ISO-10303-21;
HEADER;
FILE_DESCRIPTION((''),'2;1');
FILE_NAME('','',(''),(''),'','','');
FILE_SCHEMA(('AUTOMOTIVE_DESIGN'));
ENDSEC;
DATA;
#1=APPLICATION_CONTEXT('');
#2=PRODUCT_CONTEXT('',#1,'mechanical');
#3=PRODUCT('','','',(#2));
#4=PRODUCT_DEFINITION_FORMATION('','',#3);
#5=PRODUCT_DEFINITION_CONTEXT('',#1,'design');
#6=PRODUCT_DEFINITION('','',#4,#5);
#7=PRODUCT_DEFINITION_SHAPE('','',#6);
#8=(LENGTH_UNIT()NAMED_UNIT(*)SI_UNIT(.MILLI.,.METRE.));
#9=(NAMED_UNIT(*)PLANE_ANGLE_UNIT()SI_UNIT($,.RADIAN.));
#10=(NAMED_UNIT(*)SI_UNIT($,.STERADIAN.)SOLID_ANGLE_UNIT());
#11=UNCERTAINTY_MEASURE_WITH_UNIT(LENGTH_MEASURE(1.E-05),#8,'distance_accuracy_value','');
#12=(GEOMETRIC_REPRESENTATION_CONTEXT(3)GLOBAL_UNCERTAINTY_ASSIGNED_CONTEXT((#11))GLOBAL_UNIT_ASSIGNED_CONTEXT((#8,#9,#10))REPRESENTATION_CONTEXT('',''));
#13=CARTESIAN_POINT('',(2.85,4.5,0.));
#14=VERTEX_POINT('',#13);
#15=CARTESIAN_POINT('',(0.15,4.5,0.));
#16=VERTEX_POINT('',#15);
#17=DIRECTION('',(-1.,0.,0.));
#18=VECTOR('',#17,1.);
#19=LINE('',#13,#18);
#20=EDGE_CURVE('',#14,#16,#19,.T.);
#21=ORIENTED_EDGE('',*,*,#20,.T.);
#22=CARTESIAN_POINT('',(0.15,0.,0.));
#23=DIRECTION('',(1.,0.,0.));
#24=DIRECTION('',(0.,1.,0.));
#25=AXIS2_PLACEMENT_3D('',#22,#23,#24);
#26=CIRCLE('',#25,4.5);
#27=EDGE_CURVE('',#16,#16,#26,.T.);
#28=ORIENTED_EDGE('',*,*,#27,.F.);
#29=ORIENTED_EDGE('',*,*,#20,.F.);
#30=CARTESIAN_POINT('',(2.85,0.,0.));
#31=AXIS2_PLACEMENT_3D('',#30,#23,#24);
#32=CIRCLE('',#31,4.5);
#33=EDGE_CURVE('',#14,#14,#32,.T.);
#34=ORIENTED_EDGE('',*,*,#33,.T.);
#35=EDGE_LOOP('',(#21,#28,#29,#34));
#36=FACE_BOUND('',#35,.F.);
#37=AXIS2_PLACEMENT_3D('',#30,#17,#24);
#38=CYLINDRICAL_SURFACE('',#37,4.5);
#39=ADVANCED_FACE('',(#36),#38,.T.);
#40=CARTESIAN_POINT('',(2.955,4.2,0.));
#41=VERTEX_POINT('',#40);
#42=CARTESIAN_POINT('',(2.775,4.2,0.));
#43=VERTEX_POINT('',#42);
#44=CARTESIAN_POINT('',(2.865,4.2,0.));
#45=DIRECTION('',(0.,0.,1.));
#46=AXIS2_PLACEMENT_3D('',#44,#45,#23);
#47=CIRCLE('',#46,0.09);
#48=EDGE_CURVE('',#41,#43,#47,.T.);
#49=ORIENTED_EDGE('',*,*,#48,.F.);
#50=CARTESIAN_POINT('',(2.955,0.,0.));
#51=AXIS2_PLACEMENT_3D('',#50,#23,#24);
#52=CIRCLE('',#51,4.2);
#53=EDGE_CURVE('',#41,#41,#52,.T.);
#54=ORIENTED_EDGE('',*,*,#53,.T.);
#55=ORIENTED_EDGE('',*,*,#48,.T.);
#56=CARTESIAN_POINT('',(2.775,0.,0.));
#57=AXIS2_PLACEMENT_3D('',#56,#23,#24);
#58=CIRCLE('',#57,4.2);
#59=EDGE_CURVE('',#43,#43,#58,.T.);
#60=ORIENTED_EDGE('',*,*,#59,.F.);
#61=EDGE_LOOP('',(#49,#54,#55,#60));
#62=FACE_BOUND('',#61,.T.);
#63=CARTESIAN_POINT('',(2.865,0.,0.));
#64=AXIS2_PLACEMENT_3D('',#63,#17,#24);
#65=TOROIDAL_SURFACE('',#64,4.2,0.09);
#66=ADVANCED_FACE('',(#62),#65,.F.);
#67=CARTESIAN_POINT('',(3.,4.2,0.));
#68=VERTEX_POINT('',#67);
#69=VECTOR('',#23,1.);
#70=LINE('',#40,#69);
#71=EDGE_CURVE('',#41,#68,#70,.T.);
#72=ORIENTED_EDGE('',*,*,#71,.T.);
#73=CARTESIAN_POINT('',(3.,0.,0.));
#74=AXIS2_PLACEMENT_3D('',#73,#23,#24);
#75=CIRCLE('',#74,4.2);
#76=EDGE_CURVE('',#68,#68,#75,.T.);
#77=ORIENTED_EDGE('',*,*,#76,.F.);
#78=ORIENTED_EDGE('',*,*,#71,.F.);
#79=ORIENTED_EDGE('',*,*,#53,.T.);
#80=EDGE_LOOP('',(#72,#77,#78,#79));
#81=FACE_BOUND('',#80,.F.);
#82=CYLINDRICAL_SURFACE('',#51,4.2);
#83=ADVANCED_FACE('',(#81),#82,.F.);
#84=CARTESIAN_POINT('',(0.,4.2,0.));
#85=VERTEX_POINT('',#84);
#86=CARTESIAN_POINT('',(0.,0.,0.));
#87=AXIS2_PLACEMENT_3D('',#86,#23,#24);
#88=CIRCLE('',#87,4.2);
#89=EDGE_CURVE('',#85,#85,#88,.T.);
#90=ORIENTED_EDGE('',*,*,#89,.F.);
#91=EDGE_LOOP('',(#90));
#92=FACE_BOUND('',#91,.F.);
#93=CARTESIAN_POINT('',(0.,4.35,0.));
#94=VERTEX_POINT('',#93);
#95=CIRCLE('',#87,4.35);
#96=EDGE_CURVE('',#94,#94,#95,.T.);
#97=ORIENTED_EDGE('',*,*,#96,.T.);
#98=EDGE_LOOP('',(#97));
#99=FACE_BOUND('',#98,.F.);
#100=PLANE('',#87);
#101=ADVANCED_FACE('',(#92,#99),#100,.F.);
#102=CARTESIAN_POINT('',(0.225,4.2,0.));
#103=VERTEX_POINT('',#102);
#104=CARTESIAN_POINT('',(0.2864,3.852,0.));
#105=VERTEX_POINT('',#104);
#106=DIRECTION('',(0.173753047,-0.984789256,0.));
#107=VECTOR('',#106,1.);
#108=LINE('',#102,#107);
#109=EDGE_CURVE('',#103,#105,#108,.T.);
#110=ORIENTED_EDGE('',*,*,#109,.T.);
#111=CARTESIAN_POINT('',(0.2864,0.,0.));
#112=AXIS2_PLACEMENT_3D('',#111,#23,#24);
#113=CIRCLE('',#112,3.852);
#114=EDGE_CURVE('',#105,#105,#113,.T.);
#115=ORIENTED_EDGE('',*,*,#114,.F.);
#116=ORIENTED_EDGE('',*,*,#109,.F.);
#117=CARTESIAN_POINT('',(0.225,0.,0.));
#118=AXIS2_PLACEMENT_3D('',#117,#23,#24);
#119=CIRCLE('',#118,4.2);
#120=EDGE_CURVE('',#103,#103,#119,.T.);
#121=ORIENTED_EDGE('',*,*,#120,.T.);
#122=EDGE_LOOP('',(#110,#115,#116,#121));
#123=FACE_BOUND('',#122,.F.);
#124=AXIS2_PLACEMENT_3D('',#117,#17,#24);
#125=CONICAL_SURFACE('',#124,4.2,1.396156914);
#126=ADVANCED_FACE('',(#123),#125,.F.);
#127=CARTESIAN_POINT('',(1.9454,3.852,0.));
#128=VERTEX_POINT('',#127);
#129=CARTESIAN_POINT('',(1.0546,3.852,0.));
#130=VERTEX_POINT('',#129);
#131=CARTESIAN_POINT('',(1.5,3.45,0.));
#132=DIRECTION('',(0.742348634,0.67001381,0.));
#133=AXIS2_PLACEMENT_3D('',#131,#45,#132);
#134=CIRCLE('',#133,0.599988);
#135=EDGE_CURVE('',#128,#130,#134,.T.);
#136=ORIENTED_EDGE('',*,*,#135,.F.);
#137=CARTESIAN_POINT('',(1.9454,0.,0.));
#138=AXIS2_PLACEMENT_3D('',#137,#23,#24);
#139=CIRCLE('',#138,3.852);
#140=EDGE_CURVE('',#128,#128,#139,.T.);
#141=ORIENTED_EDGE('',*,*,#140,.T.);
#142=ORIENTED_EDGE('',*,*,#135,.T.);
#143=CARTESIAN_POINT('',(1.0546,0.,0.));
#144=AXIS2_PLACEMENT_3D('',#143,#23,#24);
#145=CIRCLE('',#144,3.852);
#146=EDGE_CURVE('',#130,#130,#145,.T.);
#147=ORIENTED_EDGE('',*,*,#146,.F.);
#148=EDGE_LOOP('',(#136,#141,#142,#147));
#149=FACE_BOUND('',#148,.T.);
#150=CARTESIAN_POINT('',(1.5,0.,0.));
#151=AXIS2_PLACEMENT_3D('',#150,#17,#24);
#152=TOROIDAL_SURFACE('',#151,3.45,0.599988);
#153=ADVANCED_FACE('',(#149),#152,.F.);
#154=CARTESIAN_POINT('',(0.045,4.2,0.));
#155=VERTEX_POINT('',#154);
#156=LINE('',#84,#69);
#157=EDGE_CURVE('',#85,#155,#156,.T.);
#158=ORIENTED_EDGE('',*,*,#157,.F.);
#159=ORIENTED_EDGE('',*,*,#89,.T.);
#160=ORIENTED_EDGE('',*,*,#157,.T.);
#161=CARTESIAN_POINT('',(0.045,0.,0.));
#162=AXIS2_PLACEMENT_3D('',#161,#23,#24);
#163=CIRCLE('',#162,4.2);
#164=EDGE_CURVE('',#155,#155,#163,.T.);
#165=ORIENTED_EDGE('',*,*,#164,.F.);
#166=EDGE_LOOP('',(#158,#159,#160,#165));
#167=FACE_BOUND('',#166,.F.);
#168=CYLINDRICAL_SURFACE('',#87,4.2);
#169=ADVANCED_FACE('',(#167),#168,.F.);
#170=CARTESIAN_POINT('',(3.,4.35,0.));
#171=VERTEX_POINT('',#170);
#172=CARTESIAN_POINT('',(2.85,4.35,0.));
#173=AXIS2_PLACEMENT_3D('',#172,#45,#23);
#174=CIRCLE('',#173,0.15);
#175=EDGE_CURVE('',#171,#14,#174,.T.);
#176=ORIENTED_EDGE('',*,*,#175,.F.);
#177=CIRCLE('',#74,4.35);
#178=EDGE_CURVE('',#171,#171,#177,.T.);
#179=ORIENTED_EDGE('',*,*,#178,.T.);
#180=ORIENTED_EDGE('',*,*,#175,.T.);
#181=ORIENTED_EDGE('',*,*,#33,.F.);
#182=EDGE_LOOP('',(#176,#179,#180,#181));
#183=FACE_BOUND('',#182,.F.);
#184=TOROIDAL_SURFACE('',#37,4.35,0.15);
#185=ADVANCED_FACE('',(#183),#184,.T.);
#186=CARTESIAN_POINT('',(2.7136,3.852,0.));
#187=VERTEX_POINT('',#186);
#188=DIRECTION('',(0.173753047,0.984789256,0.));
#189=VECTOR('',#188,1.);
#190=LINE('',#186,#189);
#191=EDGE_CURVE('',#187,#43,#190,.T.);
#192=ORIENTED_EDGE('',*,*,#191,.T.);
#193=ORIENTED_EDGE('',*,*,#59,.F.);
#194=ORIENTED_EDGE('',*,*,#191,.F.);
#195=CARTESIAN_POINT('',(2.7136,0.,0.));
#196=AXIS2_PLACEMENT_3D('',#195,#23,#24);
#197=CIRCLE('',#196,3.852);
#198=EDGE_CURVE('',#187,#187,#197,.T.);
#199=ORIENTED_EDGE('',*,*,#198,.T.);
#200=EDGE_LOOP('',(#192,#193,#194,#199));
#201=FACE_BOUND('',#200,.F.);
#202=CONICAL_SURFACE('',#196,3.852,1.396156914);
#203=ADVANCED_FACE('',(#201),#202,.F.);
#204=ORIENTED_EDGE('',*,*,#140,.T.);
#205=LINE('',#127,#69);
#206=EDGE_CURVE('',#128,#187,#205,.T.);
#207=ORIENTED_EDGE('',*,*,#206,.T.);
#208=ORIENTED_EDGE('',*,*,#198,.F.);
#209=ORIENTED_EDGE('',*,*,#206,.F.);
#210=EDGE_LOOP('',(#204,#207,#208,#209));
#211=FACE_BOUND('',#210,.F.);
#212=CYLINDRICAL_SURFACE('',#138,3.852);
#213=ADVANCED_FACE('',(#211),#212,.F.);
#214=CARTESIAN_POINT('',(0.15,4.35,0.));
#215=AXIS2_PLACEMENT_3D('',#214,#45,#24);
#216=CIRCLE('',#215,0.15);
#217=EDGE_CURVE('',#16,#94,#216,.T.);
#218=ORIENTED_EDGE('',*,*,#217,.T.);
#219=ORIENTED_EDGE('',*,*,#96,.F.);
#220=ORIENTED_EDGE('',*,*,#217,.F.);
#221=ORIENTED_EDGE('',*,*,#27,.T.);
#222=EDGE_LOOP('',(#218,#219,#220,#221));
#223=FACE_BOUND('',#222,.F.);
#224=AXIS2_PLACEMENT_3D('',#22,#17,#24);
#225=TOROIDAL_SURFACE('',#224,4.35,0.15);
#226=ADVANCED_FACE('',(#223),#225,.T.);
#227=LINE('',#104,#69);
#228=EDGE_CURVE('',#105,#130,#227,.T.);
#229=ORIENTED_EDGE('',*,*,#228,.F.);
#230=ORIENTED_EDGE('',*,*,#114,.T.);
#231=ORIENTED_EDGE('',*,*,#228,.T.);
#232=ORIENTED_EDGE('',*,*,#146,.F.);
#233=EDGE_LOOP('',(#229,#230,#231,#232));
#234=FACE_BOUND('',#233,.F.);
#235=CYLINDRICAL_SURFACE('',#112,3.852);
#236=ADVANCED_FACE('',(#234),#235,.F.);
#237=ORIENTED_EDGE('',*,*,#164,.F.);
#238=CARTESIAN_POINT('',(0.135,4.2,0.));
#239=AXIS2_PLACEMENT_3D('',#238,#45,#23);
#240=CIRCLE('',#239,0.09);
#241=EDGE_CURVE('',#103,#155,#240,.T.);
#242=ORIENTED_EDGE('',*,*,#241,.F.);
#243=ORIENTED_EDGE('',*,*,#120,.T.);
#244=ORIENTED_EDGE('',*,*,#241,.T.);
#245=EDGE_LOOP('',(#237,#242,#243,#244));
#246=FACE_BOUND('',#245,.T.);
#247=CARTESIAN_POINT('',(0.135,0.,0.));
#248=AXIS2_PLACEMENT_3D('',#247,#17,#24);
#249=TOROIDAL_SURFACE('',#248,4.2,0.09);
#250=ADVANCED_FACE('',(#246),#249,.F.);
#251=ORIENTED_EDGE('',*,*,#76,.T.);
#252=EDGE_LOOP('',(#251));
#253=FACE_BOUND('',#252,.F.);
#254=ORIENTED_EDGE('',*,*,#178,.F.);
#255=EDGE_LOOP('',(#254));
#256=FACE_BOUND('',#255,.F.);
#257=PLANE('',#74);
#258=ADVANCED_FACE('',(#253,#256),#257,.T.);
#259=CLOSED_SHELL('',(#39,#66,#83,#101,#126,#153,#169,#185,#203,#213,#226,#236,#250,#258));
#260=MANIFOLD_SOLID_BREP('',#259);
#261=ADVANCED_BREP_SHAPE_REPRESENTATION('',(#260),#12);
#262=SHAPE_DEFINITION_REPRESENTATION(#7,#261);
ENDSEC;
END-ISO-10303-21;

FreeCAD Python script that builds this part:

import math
import FreeCAD as App
import Part
import Sketcher

doc = App.newDocument("Part")
params = doc.addObject("Spreadsheet::Sheet", "Params")
for row, (alias, value) in enumerate([
    ("sketch1_radius", "0.6 mm"),
    ("sketch1_radius2", "0.15 mm"),
    ("sketch1_radius3", "0.09 mm"),
    ("sketch1_width", "2.7 mm"),
    ("sketch1_height", "0.15 mm"),
    ("revolution_angle", "360 deg"),
], start=1):
    params.set(f"A{row}", alias)
    params.set(f"B{row}", "=" + value)
    params.setAlias(f"B{row}", alias)

body = doc.addObject("PartDesign::Body", "Body")

# Sketch on XY plane
sketch1 = doc.addObject("Sketcher::SketchObject", "Sketch")
body.addObject(sketch1)
sketch1.AttachmentSupport = (doc.XY_Plane, [""])
sketch1.MapMode = "FlatFace"
sketch1.addGeometry([
    Part.ArcOfCircle(Part.Circle(App.Vector(0.15, 4.35, 0), App.Vector(0, 0, 1), 0.15), math.radians(90), math.radians(180)),  # 0
    Part.LineSegment(App.Vector(0, 4.35, 0), App.Vector(0, 4.2, 0)),  # 1
    Part.LineSegment(App.Vector(0, 4.2, 0), App.Vector(0.045, 4.2, 0)),  # 2
    Part.ArcOfCircle(Part.Circle(App.Vector(0.135, 4.2, 0), App.Vector(0, 0, 1), 0.09), math.radians(0), math.radians(180)),  # 3
    Part.LineSegment(App.Vector(0.225, 4.2, 0), App.Vector(0.286, 3.852, 0)),  # 4
    Part.LineSegment(App.Vector(0.286, 3.852, 0), App.Vector(1.055, 3.852, 0)),  # 5
    Part.ArcOfCircle(Part.Circle(App.Vector(1.5, 3.45, 0), App.Vector(0, 0, 1), 0.6), math.radians(42), math.radians(138)),  # 6
    Part.LineSegment(App.Vector(1.945, 3.852, 0), App.Vector(2.714, 3.852, 0)),  # 7
    Part.LineSegment(App.Vector(2.714, 3.852, 0), App.Vector(2.775, 4.2, 0)),  # 8
    Part.ArcOfCircle(Part.Circle(App.Vector(2.865, 4.2, 0), App.Vector(0, 0, 1), 0.09), math.radians(0), math.radians(180)),  # 9
    Part.LineSegment(App.Vector(2.955, 4.2, 0), App.Vector(3, 4.2, 0)),  # 10
    Part.LineSegment(App.Vector(3, 4.2, 0), App.Vector(3, 4.35, 0)),  # 11
    Part.ArcOfCircle(Part.Circle(App.Vector(2.85, 4.35, 0), App.Vector(0, 0, 1), 0.15), math.radians(0), math.radians(90)),  # 12
    Part.LineSegment(App.Vector(2.85, 4.5, 0), App.Vector(0.15, 4.5, 0)),  # 13
], False)
sketch1.addConstraint([
    Sketcher.Constraint("Tangent", 0, 2, 1, 1),
    Sketcher.Constraint("Coincident", 1, 2, 2, 1),
    Sketcher.Constraint("Coincident", 2, 2, 3, 2),
    Sketcher.Constraint("Coincident", 3, 1, 4, 1),
    Sketcher.Constraint("Coincident", 4, 2, 5, 1),
    Sketcher.Constraint("Coincident", 5, 2, 6, 2),
    Sketcher.Constraint("Coincident", 6, 1, 7, 1),
    Sketcher.Constraint("Coincident", 7, 2, 8, 1),
    Sketcher.Constraint("Coincident", 8, 2, 9, 2),
    Sketcher.Constraint("Coincident", 9, 1, 10, 1),
    Sketcher.Constraint("Coincident", 10, 2, 11, 1),
    Sketcher.Constraint("Tangent", 11, 2, 12, 1),
    Sketcher.Constraint("Tangent", 12, 2, 13, 1),
    Sketcher.Constraint("Tangent", 13, 2, 0, 1),
    Sketcher.Constraint("Vertical", 1),
    Sketcher.Constraint("Horizontal", 2),
    Sketcher.Constraint("Horizontal", 5),
    Sketcher.Constraint("Horizontal", 7),
    Sketcher.Constraint("Horizontal", 10),
    Sketcher.Constraint("Vertical", 11),
    Sketcher.Constraint("Horizontal", 13),
    Sketcher.Constraint("Equal", 3, 9),
    Sketcher.Constraint("Equal", 0, 12),
    Sketcher.Constraint("PointOnObject", 0, 2, -2),
    Sketcher.Constraint("Horizontal", 3, 3, 9, 3),
    Sketcher.Constraint("Horizontal", 9, 3, 1, 2),
    Sketcher.Constraint("Horizontal", 2, 2, 3, 1),
    Sketcher.Constraint("Horizontal", 5, 2, 6, 1),
    Sketcher.Constraint("Horizontal", 3, 1, 8, 2),
    Sketcher.Constraint("Horizontal", 8, 2, 9, 1),
    Sketcher.Constraint("Equal", 5, 7),
    Sketcher.Constraint("Equal", 2, 10),
    Sketcher.Constraint("Equal", 4, 8),
    Sketcher.Constraint("Radius", 6, 0.6),
    Sketcher.Constraint("Radius", 0, 0.15),
    Sketcher.Constraint("Radius", 3, 0.09),
    Sketcher.Constraint("DistanceX", 13, 2, 13, 1, 2.7),
    Sketcher.Constraint("DistanceY", 1, 2, 1, 1, 0.15),
    Sketcher.Constraint("DistanceY", -1, 1, 3, 3, 4.2),
    Sketcher.Constraint("DistanceY", 6, 3, 0, 3, 0.9),
    Sketcher.Constraint("DistanceX", 2, 1, 2, 2, 0.045),
    Sketcher.Constraint("DistanceX", 5, 1, 5, 2, 0.7682),
    Sketcher.Constraint("DistanceY", -1, 1, 4, 2, 3.852),
])
sketch1.setExpression("Constraints[33]", "Params.sketch1_radius")
sketch1.setExpression("Constraints[34]", "Params.sketch1_radius2")
sketch1.setExpression("Constraints[35]", "Params.sketch1_radius3")
sketch1.setExpression("Constraints[36]", "Params.sketch1_width")
sketch1.setExpression("Constraints[37]", "Params.sketch1_height")
revolution = doc.addObject("PartDesign::Revolution", "Revolution")
body.addObject(revolution)
revolution.Profile = sketch1
revolution.ReferenceAxis = (sketch1, ["H_Axis"])
revolution.setExpression("Angle", "Params.revolution_angle")

doc.recompute()
